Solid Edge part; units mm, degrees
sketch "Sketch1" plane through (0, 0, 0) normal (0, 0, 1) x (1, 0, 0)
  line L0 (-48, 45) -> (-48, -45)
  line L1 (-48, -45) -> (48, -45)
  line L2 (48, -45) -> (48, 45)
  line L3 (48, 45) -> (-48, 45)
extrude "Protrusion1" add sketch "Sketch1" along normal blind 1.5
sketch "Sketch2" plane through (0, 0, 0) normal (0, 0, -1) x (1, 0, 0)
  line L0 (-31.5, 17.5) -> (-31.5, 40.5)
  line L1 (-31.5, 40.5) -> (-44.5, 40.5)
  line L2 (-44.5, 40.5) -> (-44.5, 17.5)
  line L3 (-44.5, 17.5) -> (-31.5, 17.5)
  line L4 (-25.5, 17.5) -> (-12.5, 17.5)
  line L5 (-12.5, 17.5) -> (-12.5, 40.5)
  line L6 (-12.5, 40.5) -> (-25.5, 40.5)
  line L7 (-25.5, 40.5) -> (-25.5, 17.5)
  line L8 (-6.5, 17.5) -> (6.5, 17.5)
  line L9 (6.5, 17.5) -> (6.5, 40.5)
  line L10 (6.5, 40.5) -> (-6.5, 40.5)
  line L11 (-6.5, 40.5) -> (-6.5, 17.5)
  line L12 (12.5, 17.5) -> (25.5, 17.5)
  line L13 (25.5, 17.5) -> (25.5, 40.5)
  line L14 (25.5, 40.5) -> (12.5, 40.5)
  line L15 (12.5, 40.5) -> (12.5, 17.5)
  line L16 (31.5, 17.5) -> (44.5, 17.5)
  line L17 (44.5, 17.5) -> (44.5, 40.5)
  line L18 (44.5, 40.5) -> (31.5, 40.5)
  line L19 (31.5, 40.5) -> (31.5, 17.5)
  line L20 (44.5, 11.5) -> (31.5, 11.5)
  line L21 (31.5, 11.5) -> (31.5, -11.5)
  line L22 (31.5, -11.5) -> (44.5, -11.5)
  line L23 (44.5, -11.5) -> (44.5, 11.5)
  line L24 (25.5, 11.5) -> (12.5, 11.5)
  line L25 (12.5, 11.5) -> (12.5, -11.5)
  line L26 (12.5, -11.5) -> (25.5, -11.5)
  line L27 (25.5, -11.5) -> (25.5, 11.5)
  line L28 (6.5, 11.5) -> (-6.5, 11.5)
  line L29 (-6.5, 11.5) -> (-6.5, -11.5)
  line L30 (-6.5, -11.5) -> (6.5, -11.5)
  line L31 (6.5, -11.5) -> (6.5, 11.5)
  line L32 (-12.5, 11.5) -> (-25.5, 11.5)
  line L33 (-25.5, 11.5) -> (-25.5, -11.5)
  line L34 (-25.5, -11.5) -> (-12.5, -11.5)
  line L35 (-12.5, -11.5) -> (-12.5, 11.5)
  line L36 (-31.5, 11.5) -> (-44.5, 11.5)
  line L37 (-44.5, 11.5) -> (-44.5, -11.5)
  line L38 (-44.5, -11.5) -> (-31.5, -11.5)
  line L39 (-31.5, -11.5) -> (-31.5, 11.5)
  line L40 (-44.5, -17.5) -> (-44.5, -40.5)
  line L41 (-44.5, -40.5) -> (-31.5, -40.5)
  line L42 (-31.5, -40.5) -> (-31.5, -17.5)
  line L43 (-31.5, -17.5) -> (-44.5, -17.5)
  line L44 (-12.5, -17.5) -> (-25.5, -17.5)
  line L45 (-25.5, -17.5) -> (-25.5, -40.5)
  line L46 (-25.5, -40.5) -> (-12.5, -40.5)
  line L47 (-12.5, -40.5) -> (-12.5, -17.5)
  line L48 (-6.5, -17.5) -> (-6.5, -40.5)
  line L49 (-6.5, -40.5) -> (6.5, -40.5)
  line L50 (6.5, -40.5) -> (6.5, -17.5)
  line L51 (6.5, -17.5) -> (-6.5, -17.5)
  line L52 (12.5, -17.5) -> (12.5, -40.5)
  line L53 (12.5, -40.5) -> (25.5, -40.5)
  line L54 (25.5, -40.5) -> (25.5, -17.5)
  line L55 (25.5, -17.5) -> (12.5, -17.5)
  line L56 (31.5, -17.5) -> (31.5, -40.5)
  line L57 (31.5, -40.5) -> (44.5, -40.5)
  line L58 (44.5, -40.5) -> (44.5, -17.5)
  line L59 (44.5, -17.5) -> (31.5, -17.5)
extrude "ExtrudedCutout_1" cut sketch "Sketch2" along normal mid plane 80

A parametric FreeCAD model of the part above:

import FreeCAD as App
import Part
import Sketcher

V = App.Vector

doc = App.newDocument("Part")
body = doc.addObject("PartDesign::Body", "Body")

sketch1 = body.newObject("Sketcher::SketchObject", "Sketch")
sketch1.AttachmentSupport = (doc.getObject("XY_Plane"), [""])
sketch1.MapMode = "FlatFace"
sketch1.addGeometry([
    Part.LineSegment(V(48, 45, 0), V(-48, 45, 0)),
    Part.LineSegment(V(-48, 45, 0), V(-48, -45, 0)),
    Part.LineSegment(V(-48, -45, 0), V(48, -45, 0)),
    Part.LineSegment(V(48, -45, 0), V(48, 45, 0)),
], False)
sketch1.addConstraint([
    Sketcher.Constraint("Coincident", 0, 2, 1, 1),
    Sketcher.Constraint("Coincident", 1, 2, 2, 1),
    Sketcher.Constraint("Coincident", 2, 2, 3, 1),
    Sketcher.Constraint("Coincident", 3, 2, 0, 1),
    Sketcher.Constraint("Horizontal", 0),
    Sketcher.Constraint("Vertical", 1),
    Sketcher.Constraint("Horizontal", 2),
    Sketcher.Constraint("Vertical", 3),
    Sketcher.Constraint("Symmetric", 0, 2, 2, 2, -1, 1),
    Sketcher.Constraint("DistanceX", 0, 2, 0, 1, 96.0),
    Sketcher.Constraint("DistanceY", 1, 2, 1, 1, 90.0),
])
pad1 = body.newObject("PartDesign::Pad", "Pad")
pad1.Profile = sketch1
pad1.Length = 1.5

sketch2 = body.newObject("Sketcher::SketchObject", "Sketch001")
sketch2.AttachmentSupport = (doc.getObject("XY_Plane"), [""])
sketch2.MapMode = "FlatFace"
sketch2.addGeometry([
    Part.LineSegment(V(-44, -18, 0), V(-32, -18, 0)),
    Part.LineSegment(V(-32, -18, 0), V(-32, -40, 0)),
    Part.LineSegment(V(-32, -40, 0), V(-44, -40, 0)),
    Part.LineSegment(V(-44, -40, 0), V(-44, -18, 0)),
    Part.LineSegment(V(-26, -40, 0), V(-26, -18, 0)),
    Part.LineSegment(V(-26, -18, 0), V(-12, -18, 0)),
    Part.LineSegment(V(-12, -18, 0), V(-12, -40, 0)),
    Part.LineSegment(V(-12, -40, 0), V(-26, -40, 0)),
    Part.LineSegment(V(-6, -40, 0), V(-6, -18, 0)),
    Part.LineSegment(V(-6, -18, 0), V(6, -18, 0)),
    Part.LineSegment(V(6, -18, 0), V(6, -40, 0)),
    Part.LineSegment(V(6, -40, 0), V(-6, -40, 0)),
    Part.LineSegment(V(12, -40, 0), V(12, -18, 0)),
    Part.LineSegment(V(12, -18, 0), V(26, -18, 0)),
    Part.LineSegment(V(26, -18, 0), V(26, -40, 0)),
    Part.LineSegment(V(26, -40, 0), V(12, -40, 0)),
    Part.LineSegment(V(32, -40, 0), V(32, -18, 0)),
    Part.LineSegment(V(32, -18, 0), V(44, -18, 0)),
    Part.LineSegment(V(44, -18, 0), V(44, -40, 0)),
    Part.LineSegment(V(44, -40, 0), V(32, -40, 0)),
    Part.LineSegment(V(44, 12, 0), V(44, -12, 0)),
    Part.LineSegment(V(44, -12, 0), V(32, -12, 0)),
    Part.LineSegment(V(32, -12, 0), V(32, 12, 0)),
    Part.LineSegment(V(32, 12, 0), V(44, 12, 0)),
    Part.LineSegment(V(26, 12, 0), V(26, -12, 0)),
    Part.LineSegment(V(26, -12, 0), V(12, -12, 0)),
    Part.LineSegment(V(12, -12, 0), V(12, 12, 0)),
    Part.LineSegment(V(12, 12, 0), V(26, 12, 0)),
    Part.LineSegment(V(6, 12, 0), V(6, -12, 0)),
    Part.LineSegment(V(6, -12, 0), V(-6, -12, 0)),
    Part.LineSegment(V(-6, -12, 0), V(-6, 12, 0)),
    Part.LineSegment(V(-6, 12, 0), V(6, 12, 0)),
    Part.LineSegment(V(-12, 12, 0), V(-12, -12, 0)),
    Part.LineSegment(V(-12, -12, 0), V(-26, -12, 0)),
    Part.LineSegment(V(-26, -12, 0), V(-26, 12, 0)),
    Part.LineSegment(V(-26, 12, 0), V(-12, 12, 0)),
    Part.LineSegment(V(-32, 12, 0), V(-32, -12, 0)),
    Part.LineSegment(V(-32, -12, 0), V(-44, -12, 0)),
    Part.LineSegment(V(-44, -12, 0), V(-44, 12, 0)),
    Part.LineSegment(V(-44, 12, 0), V(-32, 12, 0)),
    Part.LineSegment(V(-32, 18, 0), V(-44, 18, 0)),
    Part.LineSegment(V(-44, 18, 0), V(-44, 40, 0)),
    Part.LineSegment(V(-44, 40, 0), V(-32, 40, 0)),
    Part.LineSegment(V(-32, 40, 0), V(-32, 18, 0)),
    Part.LineSegment(V(-12, 40, 0), V(-12, 18, 0)),
    Part.LineSegment(V(-12, 18, 0), V(-26, 18, 0)),
    Part.LineSegment(V(-26, 18, 0), V(-26, 40, 0)),
    Part.LineSegment(V(-26, 40, 0), V(-12, 40, 0)),
    Part.LineSegment(V(6, 18, 0), V(-6, 18, 0)),
    Part.LineSegment(V(-6, 18, 0), V(-6, 40, 0)),
    Part.LineSegment(V(-6, 40, 0), V(6, 40, 0)),
    Part.LineSegment(V(6, 40, 0), V(6, 18, 0)),
    Part.LineSegment(V(26, 18, 0), V(12, 18, 0)),
    Part.LineSegment(V(12, 18, 0), V(12, 40, 0)),
    Part.LineSegment(V(12, 40, 0), V(26, 40, 0)),
    Part.LineSegment(V(26, 40, 0), V(26, 18, 0)),
    Part.LineSegment(V(44, 18, 0), V(32, 18, 0)),
    Part.LineSegment(V(32, 18, 0), V(32, 40, 0)),
    Part.LineSegment(V(32, 40, 0), V(44, 40, 0)),
    Part.LineSegment(V(44, 40, 0), V(44, 18, 0)),
], False)
sketch2.addConstraint([
    Sketcher.Constraint("Coincident", 0, 2, 1, 1),
    Sketcher.Constraint("Coincident", 1, 2, 2, 1),
    Sketcher.Constraint("Coincident", 2, 2, 3, 1),
    Sketcher.Constraint("Coincident", 3, 2, 0, 1),
    Sketcher.Constraint("Coincident", 4, 2, 5, 1),
    Sketcher.Constraint("Coincident", 5, 2, 6, 1),
    Sketcher.Constraint("Coincident", 6, 2, 7, 1),
    Sketcher.Constraint("Coincident", 7, 2, 4, 1),
    Sketcher.Constraint("Coincident", 8, 2, 9, 1),
    Sketcher.Constraint("Coincident", 9, 2, 10, 1),
    Sketcher.Constraint("Coincident", 10, 2, 11, 1),
    Sketcher.Constraint("Coincident", 11, 2, 8, 1),
    Sketcher.Constraint("Coincident", 12, 2, 13, 1),
    Sketcher.Constraint("Coincident", 13, 2, 14, 1),
    Sketcher.Constraint("Coincident", 14, 2, 15, 1),
    Sketcher.Constraint("Coincident", 15, 2, 12, 1),
    Sketcher.Constraint("Coincident", 16, 2, 17, 1),
    Sketcher.Constraint("Coincident", 17, 2, 18, 1),
    Sketcher.Constraint("Coincident", 18, 2, 19, 1),
    Sketcher.Constraint("Coincident", 19, 2, 16, 1),
    Sketcher.Constraint("Coincident", 20, 2, 21, 1),
    Sketcher.Constraint("Coincident", 21, 2, 22, 1),
    Sketcher.Constraint("Coincident", 22, 2, 23, 1),
    Sketcher.Constraint("Coincident", 23, 2, 20, 1),
    Sketcher.Constraint("Coincident", 24, 2, 25, 1),
    Sketcher.Constraint("Coincident", 25, 2, 26, 1),
    Sketcher.Constraint("Coincident", 26, 2, 27, 1),
    Sketcher.Constraint("Coincident", 27, 2, 24, 1),
    Sketcher.Constraint("Coincident", 28, 2, 29, 1),
    Sketcher.Constraint("Coincident", 29, 2, 30, 1),
    Sketcher.Constraint("Coincident", 30, 2, 31, 1),
    Sketcher.Constraint("Coincident", 31, 2, 28, 1),
    Sketcher.Constraint("Coincident", 32, 2, 33, 1),
    Sketcher.Constraint("Coincident", 33, 2, 34, 1),
    Sketcher.Constraint("Coincident", 34, 2, 35, 1),
    Sketcher.Constraint("Coincident", 35, 2, 32, 1),
    Sketcher.Constraint("Coincident", 36, 2, 37, 1),
    Sketcher.Constraint("Coincident", 37, 2, 38, 1),
    Sketcher.Constraint("Coincident", 38, 2, 39, 1),
    Sketcher.Constraint("Coincident", 39, 2, 36, 1),
    Sketcher.Constraint("Coincident", 40, 2, 41, 1),
    Sketcher.Constraint("Coincident", 41, 2, 42, 1),
    Sketcher.Constraint("Coincident", 42, 2, 43, 1),
    Sketcher.Constraint("Coincident", 43, 2, 40, 1),
    Sketcher.Constraint("Coincident", 44, 2, 45, 1),
    Sketcher.Constraint("Coincident", 45, 2, 46, 1),
    Sketcher.Constraint("Coincident", 46, 2, 47, 1),
    Sketcher.Constraint("Coincident", 47, 2, 44, 1),
    Sketcher.Constraint("Coincident", 48, 2, 49, 1),
    Sketcher.Constraint("Coincident", 49, 2, 50, 1),
    Sketcher.Constraint("Coincident", 50, 2, 51, 1),
    Sketcher.Constraint("Coincident", 51, 2, 48, 1),
    Sketcher.Constraint("Coincident", 52, 2, 53, 1),
    Sketcher.Constraint("Coincident", 53, 2, 54, 1),
    Sketcher.Constraint("Coincident", 54, 2, 55, 1),
    Sketcher.Constraint("Coincident", 55, 2, 52, 1),
    Sketcher.Constraint("Coincident", 56, 2, 57, 1),
    Sketcher.Constraint("Coincident", 57, 2, 58, 1),
    Sketcher.Constraint("Coincident", 58, 2, 59, 1),
    Sketcher.Constraint("Coincident", 59, 2, 56, 1),
    Sketcher.Constraint("Horizontal", 0),
    Sketcher.Constraint("Vertical", 1),
    Sketcher.Constraint("Horizontal", 2),
    Sketcher.Constraint("Vertical", 3),
    Sketcher.Constraint("Vertical", 4),
    Sketcher.Constraint("Horizontal", 5),
    Sketcher.Constraint("Vertical", 6),
    Sketcher.Constraint("Horizontal", 7),
    Sketcher.Constraint("Vertical", 8),
    Sketcher.Constraint("Horizontal", 9),
    Sketcher.Constraint("Vertical", 10),
    Sketcher.Constraint("Horizontal", 11),
    Sketcher.Constraint("Vertical", 12),
    Sketcher.Constraint("Horizontal", 13),
    Sketcher.Constraint("Vertical", 14),
    Sketcher.Constraint("Horizontal", 15),
    Sketcher.Constraint("Vertical", 16),
    Sketcher.Constraint("Horizontal", 17),
    Sketcher.Constraint("Vertical", 18),
    Sketcher.Constraint("Horizontal", 19),
    Sketcher.Constraint("Vertical", 20),
    Sketcher.Constraint("Horizontal", 21),
    Sketcher.Constraint("Vertical", 22),
    Sketcher.Constraint("Horizontal", 23),
    Sketcher.Constraint("Vertical", 24),
    Sketcher.Constraint("Horizontal", 25),
    Sketcher.Constraint("Vertical", 26),
    Sketcher.Constraint("Horizontal", 27),
    Sketcher.Constraint("Vertical", 28),
    Sketcher.Constraint("Horizontal", 29),
    Sketcher.Constraint("Vertical", 30),
    Sketcher.Constraint("Horizontal", 31),
    Sketcher.Constraint("Vertical", 32),
    Sketcher.Constraint("Horizontal", 33),
    Sketcher.Constraint("Vertical", 34),
    Sketcher.Constraint("Horizontal", 35),
    Sketcher.Constraint("Vertical", 36),
    Sketcher.Constraint("Horizontal", 37),
    Sketcher.Constraint("Vertical", 38),
    Sketcher.Constraint("Horizontal", 39),
    Sketcher.Constraint("Horizontal", 40),
    Sketcher.Constraint("Vertical", 41),
    Sketcher.Constraint("Horizontal", 42),
    Sketcher.Constraint("Vertical", 43),
    Sketcher.Constraint("Vertical", 44),
    Sketcher.Constraint("Horizontal", 45),
    Sketcher.Constraint("Vertical", 46),
    Sketcher.Constraint("Horizontal", 47),
    Sketcher.Constraint("Horizontal", 48),
    Sketcher.Constraint("Vertical", 49),
    Sketcher.Constraint("Horizontal", 50),
    Sketcher.Constraint("Vertical", 51),
    Sketcher.Constraint("Horizontal", 52),
    Sketcher.Constraint("Vertical", 53),
    Sketcher.Constraint("Horizontal", 54),
    Sketcher.Constraint("Vertical", 55),
    Sketcher.Constraint("Horizontal", 56),
    Sketcher.Constraint("Vertical", 57),
    Sketcher.Constraint("Horizontal", 58),
    Sketcher.Constraint("Vertical", 59),
    Sketcher.Constraint("Symmetric", 28, 2, 30, 2, -1, 1),
    Sketcher.Constraint("Symmetric", 26, 2, 32, 2, -1, 1),
    Sketcher.Constraint("Symmetric", 24, 2, 34, 2, -1, 1),
    Sketcher.Constraint("Symmetric", 22, 2, 36, 2, -1, 1),
    Sketcher.Constraint("Symmetric", 20, 2, 38, 2, -1, 1),
    Sketcher.Constraint("Symmetric", 17, 2, 40, 2, -1, 1),
    Sketcher.Constraint("Symmetric", 19, 2, 42, 2, -1, 1),
    Sketcher.Constraint("Symmetric", 12, 2, 44, 2, -1, 1),
    Sketcher.Constraint("Symmetric", 14, 2, 46, 2, -1, 1),
    Sketcher.Constraint("Symmetric", 9, 2, 48, 2, -1, 1),
    Sketcher.Constraint("Symmetric", 11, 2, 50, 2, -1, 1),
    Sketcher.Constraint("Symmetric", 5, 2, 52, 2, -1, 1),
    Sketcher.Constraint("Symmetric", 7, 2, 54, 2, -1, 1),
    Sketcher.Constraint("Symmetric", 0, 2, 56, 2, -1, 1),
    Sketcher.Constraint("Symmetric", 2, 2, 58, 2, -1, 1),
    Sketcher.Constraint("Symmetric", 5, 2, 12, 2, -2),
    Sketcher.Constraint("Symmetric", 7, 2, 14, 2, -2),
    Sketcher.Constraint("Symmetric", 0, 2, 16, 2, -2),
    Sketcher.Constraint("Symmetric", 2, 2, 18, 2, -2),
    Sketcher.Constraint("Horizontal", 3, 2, 4, 2),
    Sketcher.Constraint("Horizontal", 2, 2, 6, 2),
    Sketcher.Constraint("Horizontal", 5, 2, 8, 2),
    Sketcher.Constraint("Horizontal", 7, 2, 10, 2),
    Sketcher.Constraint("Horizontal", 21, 2, 24, 2),
    Sketcher.Constraint("Horizontal", 23, 2, 26, 2),
    Sketcher.Constraint("Horizontal", 25, 2, 28, 2),
    Sketcher.Constraint("Horizontal", 27, 2, 30, 2),
    Sketcher.Constraint("Vertical", 18, 2, 20, 2),
    Sketcher.Constraint("Vertical", 19, 2, 21, 2),
    Sketcher.Constraint("Vertical", 14, 2, 24, 2),
    Sketcher.Constraint("Vertical", 15, 2, 25, 2),
    Sketcher.Constraint("Vertical", 10, 2, 28, 2),
    Sketcher.Constraint("Vertical", 11, 2, 29, 2),
    Sketcher.Constraint("Equal", 2, 5),
    Sketcher.Constraint("Equal", 7, 9),
    Sketcher.Constraint("Equal", 18, 20),
    Sketcher.Constraint("DistanceX", 0, 1, 0, 2, 13.0),
    Sketcher.Constraint("DistanceY", 1, 2, 1, 1, 23.0),
    Sketcher.Constraint("DistanceX", 0, 2, 4, 2, 6.0),
    Sketcher.Constraint("DistanceX", 5, 2, 8, 2, 6.0),
    Sketcher.Constraint("DistanceY", 17, 2, 20, 2, 6.0),
])
pocket1 = body.newObject("PartDesign::Pocket", "Pocket")
pocket1.Profile = sketch2
pocket1.Length = 80
pocket1.Midplane = True

doc.recompute()
